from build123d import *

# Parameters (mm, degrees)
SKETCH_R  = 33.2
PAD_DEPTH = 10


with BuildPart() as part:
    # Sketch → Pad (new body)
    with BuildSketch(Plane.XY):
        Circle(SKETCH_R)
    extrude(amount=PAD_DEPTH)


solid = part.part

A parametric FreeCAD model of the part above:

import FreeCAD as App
import Part
import Sketcher
from FreeCAD import Vector
Q = App.Units.Quantity

doc = App.newDocument("Part")
params = doc.addObject("Spreadsheet::Sheet", "Params")
for row, (alias, value) in enumerate([
    ("sketch1_diameter", "66.4 mm"),
    ("pad1_length", "10 mm"),
], start=1):
    params.set(f"A{row}", alias)
    params.set(f"B{row}", "=" + value)
    params.setAlias(f"B{row}", alias)

body = doc.addObject("PartDesign::Body", "Body")

# Sketch on XY plane
sketch1 = doc.addObject("Sketcher::SketchObject", "Sketch")
body.addObject(sketch1)
sketch1.AttachmentSupport = (doc.XY_Plane, [""])
sketch1.MapMode = "FlatFace"
sketch1.addGeometry(Part.Circle(Vector(0, 0, 0), Vector(0, 0, 1), 33.2), False)
sketch1.addConstraint([
    Sketcher.Constraint("Coincident", 0, 3, -1, 1),
    Sketcher.Constraint("Diameter", 0, Q("66.4 mm")),
])
sketch1.setExpression("Constraints[1]", "Params.sketch1_diameter")
pad1 = doc.addObject("PartDesign::Pad", "Pad")
body.addObject(pad1)
pad1.Profile = sketch1
pad1.setExpression("Length", "Params.pad1_length")

doc.recompute()
